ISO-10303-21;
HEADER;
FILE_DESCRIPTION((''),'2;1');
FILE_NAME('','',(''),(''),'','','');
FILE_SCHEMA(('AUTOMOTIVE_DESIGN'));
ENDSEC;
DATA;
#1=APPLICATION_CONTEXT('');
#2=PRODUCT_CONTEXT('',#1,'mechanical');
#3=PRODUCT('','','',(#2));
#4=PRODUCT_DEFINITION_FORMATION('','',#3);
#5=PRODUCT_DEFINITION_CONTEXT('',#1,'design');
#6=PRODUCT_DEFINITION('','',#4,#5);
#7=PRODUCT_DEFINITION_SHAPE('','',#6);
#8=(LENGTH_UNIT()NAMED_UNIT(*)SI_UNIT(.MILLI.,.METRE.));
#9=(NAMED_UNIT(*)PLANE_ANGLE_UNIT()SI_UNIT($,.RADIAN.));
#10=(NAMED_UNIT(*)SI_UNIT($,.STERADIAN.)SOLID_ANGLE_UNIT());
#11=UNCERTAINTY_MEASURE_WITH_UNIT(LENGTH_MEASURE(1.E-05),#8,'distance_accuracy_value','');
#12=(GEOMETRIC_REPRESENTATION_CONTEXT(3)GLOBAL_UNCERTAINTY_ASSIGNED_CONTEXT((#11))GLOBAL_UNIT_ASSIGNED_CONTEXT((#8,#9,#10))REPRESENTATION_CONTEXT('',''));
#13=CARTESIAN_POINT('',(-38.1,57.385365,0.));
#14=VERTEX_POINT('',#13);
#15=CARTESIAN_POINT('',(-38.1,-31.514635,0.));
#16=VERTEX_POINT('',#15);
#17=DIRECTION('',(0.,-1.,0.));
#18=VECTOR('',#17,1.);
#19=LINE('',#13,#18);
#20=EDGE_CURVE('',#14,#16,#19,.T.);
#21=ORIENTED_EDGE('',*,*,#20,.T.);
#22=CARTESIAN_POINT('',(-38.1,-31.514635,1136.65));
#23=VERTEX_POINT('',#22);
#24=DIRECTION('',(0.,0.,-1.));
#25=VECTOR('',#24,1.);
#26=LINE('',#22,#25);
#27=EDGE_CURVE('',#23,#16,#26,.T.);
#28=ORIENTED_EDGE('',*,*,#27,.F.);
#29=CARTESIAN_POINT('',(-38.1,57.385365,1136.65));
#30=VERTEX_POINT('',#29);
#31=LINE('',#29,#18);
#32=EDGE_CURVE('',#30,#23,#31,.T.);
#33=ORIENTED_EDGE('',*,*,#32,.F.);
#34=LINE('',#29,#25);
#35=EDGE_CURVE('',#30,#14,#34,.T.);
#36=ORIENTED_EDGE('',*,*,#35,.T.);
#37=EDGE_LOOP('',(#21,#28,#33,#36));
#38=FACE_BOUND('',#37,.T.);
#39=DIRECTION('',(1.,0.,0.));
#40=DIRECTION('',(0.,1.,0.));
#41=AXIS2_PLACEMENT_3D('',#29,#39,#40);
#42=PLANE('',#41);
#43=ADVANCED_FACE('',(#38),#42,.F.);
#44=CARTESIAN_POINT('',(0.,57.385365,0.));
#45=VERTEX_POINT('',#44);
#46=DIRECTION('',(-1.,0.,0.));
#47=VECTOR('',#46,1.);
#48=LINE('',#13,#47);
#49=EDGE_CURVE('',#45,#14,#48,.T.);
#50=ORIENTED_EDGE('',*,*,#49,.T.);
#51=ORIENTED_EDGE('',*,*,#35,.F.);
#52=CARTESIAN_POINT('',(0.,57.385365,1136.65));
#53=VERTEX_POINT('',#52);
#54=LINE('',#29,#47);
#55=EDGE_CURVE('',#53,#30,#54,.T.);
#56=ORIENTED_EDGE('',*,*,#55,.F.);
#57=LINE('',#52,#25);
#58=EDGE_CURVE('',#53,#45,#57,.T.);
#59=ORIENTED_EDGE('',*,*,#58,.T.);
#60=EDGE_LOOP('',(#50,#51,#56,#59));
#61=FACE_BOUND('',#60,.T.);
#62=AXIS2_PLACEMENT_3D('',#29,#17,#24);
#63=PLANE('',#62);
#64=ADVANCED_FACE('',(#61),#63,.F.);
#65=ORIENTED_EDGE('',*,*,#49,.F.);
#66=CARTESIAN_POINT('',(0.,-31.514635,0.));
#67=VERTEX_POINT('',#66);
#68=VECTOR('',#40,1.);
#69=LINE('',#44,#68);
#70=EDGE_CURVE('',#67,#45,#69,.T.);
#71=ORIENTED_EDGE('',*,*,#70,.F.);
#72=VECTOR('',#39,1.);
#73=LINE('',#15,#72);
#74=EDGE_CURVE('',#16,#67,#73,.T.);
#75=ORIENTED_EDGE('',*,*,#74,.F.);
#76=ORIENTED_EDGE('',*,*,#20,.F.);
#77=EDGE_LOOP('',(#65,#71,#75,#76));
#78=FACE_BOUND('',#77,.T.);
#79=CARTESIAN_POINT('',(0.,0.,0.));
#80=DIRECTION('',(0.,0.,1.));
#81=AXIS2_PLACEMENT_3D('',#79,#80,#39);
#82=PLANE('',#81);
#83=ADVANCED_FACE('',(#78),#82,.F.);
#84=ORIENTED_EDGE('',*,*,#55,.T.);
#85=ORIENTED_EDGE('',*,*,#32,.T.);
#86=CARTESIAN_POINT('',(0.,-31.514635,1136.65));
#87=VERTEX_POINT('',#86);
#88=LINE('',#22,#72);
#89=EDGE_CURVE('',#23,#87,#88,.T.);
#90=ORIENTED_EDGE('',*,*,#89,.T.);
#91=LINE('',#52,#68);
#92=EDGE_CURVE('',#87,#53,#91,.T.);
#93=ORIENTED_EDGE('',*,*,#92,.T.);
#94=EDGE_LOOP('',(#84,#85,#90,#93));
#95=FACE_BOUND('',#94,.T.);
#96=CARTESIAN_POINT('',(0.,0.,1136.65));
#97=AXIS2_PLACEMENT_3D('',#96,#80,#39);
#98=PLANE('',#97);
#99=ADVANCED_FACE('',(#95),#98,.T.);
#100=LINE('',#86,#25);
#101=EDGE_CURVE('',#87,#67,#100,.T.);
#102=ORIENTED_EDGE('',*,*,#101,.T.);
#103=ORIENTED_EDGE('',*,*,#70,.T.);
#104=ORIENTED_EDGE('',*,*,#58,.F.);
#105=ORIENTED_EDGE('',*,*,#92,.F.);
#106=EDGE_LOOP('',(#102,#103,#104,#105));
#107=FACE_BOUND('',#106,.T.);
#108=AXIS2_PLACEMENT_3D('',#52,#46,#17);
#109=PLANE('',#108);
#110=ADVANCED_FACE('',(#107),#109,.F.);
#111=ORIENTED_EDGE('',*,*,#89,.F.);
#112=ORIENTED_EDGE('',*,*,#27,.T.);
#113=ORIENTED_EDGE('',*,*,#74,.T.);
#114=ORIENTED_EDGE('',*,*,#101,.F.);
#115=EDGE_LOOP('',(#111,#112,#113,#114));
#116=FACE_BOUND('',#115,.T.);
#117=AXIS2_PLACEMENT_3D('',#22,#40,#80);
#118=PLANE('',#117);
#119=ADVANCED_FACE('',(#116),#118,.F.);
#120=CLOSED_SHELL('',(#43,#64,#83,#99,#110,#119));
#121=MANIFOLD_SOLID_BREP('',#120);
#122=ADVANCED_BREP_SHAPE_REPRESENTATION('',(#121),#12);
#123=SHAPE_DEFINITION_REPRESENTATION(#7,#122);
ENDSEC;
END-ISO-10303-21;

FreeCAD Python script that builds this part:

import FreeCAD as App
import Part
import Sketcher

V = App.Vector
Q = App.Units.Quantity


def add_polygon(sketch, points):
    """Adds a closed chain of lines whose ends are joined by coincident constraints."""
    first, n = sketch.GeometryCount, len(points)
    for a, b in zip(points, points[1:] + points[:1]):
        sketch.addGeometry(Part.LineSegment(App.Vector(*a, 0), App.Vector(*b, 0)), False)
    for i in range(n):
        sketch.addConstraint(Sketcher.Constraint("Coincident", first + i, 2, first + (i + 1) % n, 1))

doc = App.newDocument("Part")
body = doc.addObject("PartDesign::Body", "Body")

sketch1 = doc.addObject("Sketcher::SketchObject", "Sketch")
body.addObject(sketch1)
sketch1.AttachmentSupport = (doc.XY_Plane, [""])
sketch1.MapMode = "FlatFace"
add_polygon(sketch1, [(-38.1, 57.385365), (-38.1, -31.514635), (0, -31.514635), (0, 57.385365)])
sketch1.addConstraint([
    Sketcher.Constraint("Vertical", 0),
    Sketcher.Constraint("Horizontal", 1),
    Sketcher.Constraint("Vertical", 2),
    Sketcher.Constraint("Horizontal", 3),
    Sketcher.Constraint("PointOnObject", 1, 2, -2),
    Sketcher.Constraint("DistanceX", 1, 1, 1, 2, Q("1.5 in")),
    Sketcher.Constraint("DistanceY", 0, 2, 0, 1, Q("3.5 in")),
    Sketcher.Constraint("DistanceY", 0, 2, -1, 1, Q("31.514635 mm")),
])
pad1 = doc.addObject("PartDesign::Pad", "Pad")
body.addObject(pad1)
pad1.Profile = sketch1
pad1.Length = Q("44.75 in")

doc.recompute()
